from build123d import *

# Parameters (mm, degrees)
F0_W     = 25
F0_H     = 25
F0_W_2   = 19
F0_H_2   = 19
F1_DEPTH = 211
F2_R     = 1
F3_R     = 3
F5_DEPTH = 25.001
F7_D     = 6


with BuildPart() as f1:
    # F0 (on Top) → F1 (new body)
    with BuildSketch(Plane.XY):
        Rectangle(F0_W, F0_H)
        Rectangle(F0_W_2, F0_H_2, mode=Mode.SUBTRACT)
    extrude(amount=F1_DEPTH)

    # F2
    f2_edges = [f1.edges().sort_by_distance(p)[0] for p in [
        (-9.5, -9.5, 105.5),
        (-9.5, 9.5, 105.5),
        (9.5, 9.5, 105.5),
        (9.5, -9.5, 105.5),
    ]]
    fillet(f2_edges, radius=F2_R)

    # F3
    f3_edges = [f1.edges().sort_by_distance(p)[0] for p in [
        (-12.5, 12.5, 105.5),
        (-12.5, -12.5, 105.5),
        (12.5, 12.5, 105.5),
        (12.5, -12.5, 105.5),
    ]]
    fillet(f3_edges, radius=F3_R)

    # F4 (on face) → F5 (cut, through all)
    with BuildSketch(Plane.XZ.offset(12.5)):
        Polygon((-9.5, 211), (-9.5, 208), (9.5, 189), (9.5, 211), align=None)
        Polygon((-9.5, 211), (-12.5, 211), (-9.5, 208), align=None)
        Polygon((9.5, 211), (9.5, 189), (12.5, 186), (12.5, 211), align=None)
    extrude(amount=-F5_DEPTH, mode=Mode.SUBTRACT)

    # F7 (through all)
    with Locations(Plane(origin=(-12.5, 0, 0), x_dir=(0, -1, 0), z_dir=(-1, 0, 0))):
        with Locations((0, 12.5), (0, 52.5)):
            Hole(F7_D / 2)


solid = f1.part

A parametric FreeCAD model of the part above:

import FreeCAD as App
import Part
import Sketcher

V = App.Vector


def edges_at(feature, points):
    """Names of the edges that pass closest to the given points."""
    edges = feature.Shape.Edges
    near = lambda p: min(range(len(edges)), key=lambda i: edges[i].distToShape(Part.Vertex(*p))[0])
    return sorted({f"Edge{near(p) + 1}" for p in points})


def add_polygon(sketch, points):
    """Adds a closed chain of lines whose ends are joined by coincident constraints."""
    first, n = sketch.GeometryCount, len(points)
    for a, b in zip(points, points[1:] + points[:1]):
        sketch.addGeometry(Part.LineSegment(App.Vector(*a, 0), App.Vector(*b, 0)), False)
    for i in range(n):
        sketch.addConstraint(Sketcher.Constraint("Coincident", first + i, 2, first + (i + 1) % n, 1))

doc = App.newDocument("Part")
body = doc.addObject("PartDesign::Body", "Body")

# Sketch on XY plane
sketch1 = body.newObject("Sketcher::SketchObject", "Sketch")
sketch1.AttachmentSupport = (doc.getObject("XY_Plane"), [""])
sketch1.MapMode = "FlatFace"
add_polygon(sketch1, [(-12, 12), (-12, -12), (12, -12), (12, 12)])  # lines 0-3
add_polygon(sketch1, [(10, -10), (-10, -10), (-10, 10), (10, 10)])  # lines 4-7
sketch1.addConstraint(Sketcher.Constraint("Vertical", 0))
sketch1.addConstraint(Sketcher.Constraint("Horizontal", 1))
sketch1.addConstraint(Sketcher.Constraint("Vertical", 2))
sketch1.addConstraint(Sketcher.Constraint("Horizontal", 3))
sketch1.addConstraint(Sketcher.Constraint("Horizontal", 4))
sketch1.addConstraint(Sketcher.Constraint("Vertical", 5))
sketch1.addConstraint(Sketcher.Constraint("Horizontal", 6))
sketch1.addConstraint(Sketcher.Constraint("Vertical", 7))
sketch1.addConstraint(Sketcher.Constraint("Symmetric", 0, 2, 2, 2, -1, 1))
sketch1.addConstraint(Sketcher.Constraint("Symmetric", 4, 2, 6, 2, -1, 1))
sketch1.addConstraint(Sketcher.Constraint("Equal", 3, 0))
sketch1.addConstraint(Sketcher.Constraint("Equal", 6, 5))
sketch1.addConstraint(Sketcher.Constraint("DistanceX", 1, 1, 1, 2, 25.0))
sketch1.addConstraint(Sketcher.Constraint("DistanceX", 4, 2, 4, 1, 19.0))
pad1 = body.newObject("PartDesign::Pad", "Pad")
pad1.Profile = sketch1
pad1.Length = 211
doc.recompute()

fillet = body.newObject("PartDesign::Fillet", "Fillet")
fillet.Base = (pad1, edges_at(pad1, [
    (-9.5, -9.5, 105.5),
    (-9.5, 9.5, 105.5),
    (9.5, 9.5, 105.5),
    (9.5, -9.5, 105.5),
]))
fillet.Radius = 1
doc.recompute()

fillet2 = body.newObject("PartDesign::Fillet", "Fillet001")
fillet2.Base = (fillet, edges_at(fillet, [
    (-12.5, 12.5, 105.5),
    (-12.5, -12.5, 105.5),
    (12.5, 12.5, 105.5),
    (12.5, -12.5, 105.5),
]))
fillet2.Radius = 3

# Sketch on XZ plane
sketch2 = body.newObject("Sketcher::SketchObject", "Sketch001")
sketch2.AttachmentSupport = (doc.getObject("XZ_Plane"), [""])
sketch2.MapMode = "FlatFace"
sketch2.AttachmentOffset = App.Placement(V(0, 0, 12.5), App.Rotation())
add_polygon(sketch2, [(-12, 211), (12, 186), (12, 211)])  # lines 0-2
sketch2.addConstraint(Sketcher.Constraint("Vertical", 1))
sketch2.addConstraint(Sketcher.Constraint("Horizontal", 2))
sketch2.addConstraint(Sketcher.Constraint("Equal", 2, 1))
sketch2.addConstraint(Sketcher.Constraint("DistanceX", 2, 2, 2, 1, 25.0))
sketch2.addConstraint(Sketcher.Constraint("DistanceY", -1, 1, 0, 2, 186.0))
sketch2.addConstraint(Sketcher.Constraint("DistanceX", -1, 1, 0, 2, 12.5))
pocket1 = body.newObject("PartDesign::Pocket", "Pocket")
pocket1.Profile = sketch2
pocket1.Type = "ThroughAll"

# Sketch on YZ plane
sketch3 = body.newObject("Sketcher::SketchObject", "Sketch002")
sketch3.AttachmentSupport = (doc.getObject("YZ_Plane"), [""])
sketch3.MapMode = "FlatFace"
sketch3.AttachmentOffset = App.Placement(V(0, 0, -12.5), App.Rotation())
sketch3.addGeometry(Part.Circle(V(0, 12.5, 0), V(0, 0, 1), 3), False)
sketch3.addGeometry(Part.Circle(V(0, 52.5, 0), V(0, 0, 1), 3), False)
sketch3.addConstraint(Sketcher.Constraint("Equal", 0, 1))
sketch3.addConstraint(Sketcher.Constraint("PointOnObject", 0, 3, -2))
sketch3.addConstraint(Sketcher.Constraint("PointOnObject", 1, 3, -2))
sketch3.addConstraint(Sketcher.Constraint("Diameter", 0, 6.0))
sketch3.addConstraint(Sketcher.Constraint("DistanceY", 0, 3, 1, 3, 40.0))
sketch3.addConstraint(Sketcher.Constraint("DistanceY", -1, 1, 0, 3, 12.5))
doc.recompute()
hole = body.newObject("PartDesign::Hole", "Hole")
hole.Profile = sketch3
hole.ThreadType = "None"
hole.Diameter = 6
hole.DepthType = "ThroughAll"
hole.Reversed = True

doc.recompute()
